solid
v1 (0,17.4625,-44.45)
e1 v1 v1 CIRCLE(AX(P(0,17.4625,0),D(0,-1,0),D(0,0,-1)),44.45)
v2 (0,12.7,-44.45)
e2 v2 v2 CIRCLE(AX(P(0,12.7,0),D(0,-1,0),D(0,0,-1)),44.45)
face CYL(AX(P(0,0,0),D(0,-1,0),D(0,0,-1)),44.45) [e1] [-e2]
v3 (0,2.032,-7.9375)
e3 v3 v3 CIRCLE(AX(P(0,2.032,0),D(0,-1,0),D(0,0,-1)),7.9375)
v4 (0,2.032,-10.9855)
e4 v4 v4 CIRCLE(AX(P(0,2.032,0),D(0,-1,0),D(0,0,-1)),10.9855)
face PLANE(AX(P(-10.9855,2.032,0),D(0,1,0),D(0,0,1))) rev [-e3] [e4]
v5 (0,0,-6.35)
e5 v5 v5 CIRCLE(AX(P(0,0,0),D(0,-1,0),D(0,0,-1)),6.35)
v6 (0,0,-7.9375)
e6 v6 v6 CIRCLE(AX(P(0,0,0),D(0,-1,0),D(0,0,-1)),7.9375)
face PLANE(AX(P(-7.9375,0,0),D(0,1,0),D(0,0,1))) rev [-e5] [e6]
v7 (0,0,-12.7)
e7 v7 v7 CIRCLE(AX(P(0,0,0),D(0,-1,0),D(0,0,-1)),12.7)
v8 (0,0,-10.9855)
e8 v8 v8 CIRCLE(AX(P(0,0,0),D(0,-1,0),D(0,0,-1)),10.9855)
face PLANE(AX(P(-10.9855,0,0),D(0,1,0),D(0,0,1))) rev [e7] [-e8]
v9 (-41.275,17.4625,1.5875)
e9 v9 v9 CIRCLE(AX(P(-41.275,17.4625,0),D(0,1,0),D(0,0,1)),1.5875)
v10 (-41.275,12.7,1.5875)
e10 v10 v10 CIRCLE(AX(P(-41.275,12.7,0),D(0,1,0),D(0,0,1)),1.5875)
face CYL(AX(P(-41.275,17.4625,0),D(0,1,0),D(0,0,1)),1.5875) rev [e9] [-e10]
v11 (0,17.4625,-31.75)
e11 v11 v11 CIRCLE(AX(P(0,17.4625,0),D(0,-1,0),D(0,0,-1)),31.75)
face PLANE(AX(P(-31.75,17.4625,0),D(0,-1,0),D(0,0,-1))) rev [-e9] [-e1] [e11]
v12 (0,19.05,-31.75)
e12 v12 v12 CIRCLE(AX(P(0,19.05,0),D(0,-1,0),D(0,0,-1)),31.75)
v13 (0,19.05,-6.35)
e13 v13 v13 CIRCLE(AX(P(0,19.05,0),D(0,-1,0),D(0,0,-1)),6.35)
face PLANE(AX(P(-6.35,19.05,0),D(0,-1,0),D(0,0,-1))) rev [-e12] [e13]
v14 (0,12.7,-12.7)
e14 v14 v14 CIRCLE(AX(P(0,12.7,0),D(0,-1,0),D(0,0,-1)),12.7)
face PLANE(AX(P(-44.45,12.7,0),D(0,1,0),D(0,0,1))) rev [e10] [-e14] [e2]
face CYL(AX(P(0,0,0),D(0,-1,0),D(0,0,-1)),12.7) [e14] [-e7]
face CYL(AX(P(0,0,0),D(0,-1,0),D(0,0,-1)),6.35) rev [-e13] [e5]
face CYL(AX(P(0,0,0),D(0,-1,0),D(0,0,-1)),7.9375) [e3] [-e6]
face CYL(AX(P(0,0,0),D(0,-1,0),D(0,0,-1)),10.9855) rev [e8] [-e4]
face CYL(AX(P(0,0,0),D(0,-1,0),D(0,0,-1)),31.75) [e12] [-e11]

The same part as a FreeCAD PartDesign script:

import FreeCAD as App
import Part
import Sketcher
from FreeCAD import Vector
Q = App.Units.Quantity


def add_polygon(sketch, points):
    """Adds a closed chain of lines whose ends are joined by coincident constraints."""
    first, n = sketch.GeometryCount, len(points)
    for a, b in zip(points, points[1:] + points[:1]):
        sketch.addGeometry(Part.LineSegment(App.Vector(*a, 0), App.Vector(*b, 0)), False)
    for i in range(n):
        sketch.addConstraint(Sketcher.Constraint("Coincident", first + i, 2, first + (i + 1) % n, 1))

doc = App.newDocument("Part")
body = doc.addObject("PartDesign::Body", "Body")

# Sketch on XY plane
sketch1 = doc.addObject("Sketcher::SketchObject", "Sketch")
body.addObject(sketch1)
sketch1.AttachmentSupport = (doc.XY_Plane, [""])
sketch1.MapMode = "FlatFace"
add_polygon(sketch1, [(-6.35, 0), (-6.35, 19.05), (-31.75, 19.05), (-31.75, 17.4625), (-44.45, 17.4625), (-44.45, 12.7), (-12.7, 12.7), (-12.7, 0), (-10.9855, 0), (-10.9855, 2.032), (-7.9375, 2.032), (-7.9375, 0)])  # lines 0-11
sketch1.addConstraint(Sketcher.Constraint("Vertical", 0))
sketch1.addConstraint(Sketcher.Constraint("Horizontal", 1))
sketch1.addConstraint(Sketcher.Constraint("Vertical", 2))
sketch1.addConstraint(Sketcher.Constraint("Horizontal", 3))
sketch1.addConstraint(Sketcher.Constraint("Vertical", 4))
sketch1.addConstraint(Sketcher.Constraint("Horizontal", 5))
sketch1.addConstraint(Sketcher.Constraint("Vertical", 6))
sketch1.addConstraint(Sketcher.Constraint("Horizontal", 7))
sketch1.addConstraint(Sketcher.Constraint("Vertical", 8))
sketch1.addConstraint(Sketcher.Constraint("Horizontal", 9))
sketch1.addConstraint(Sketcher.Constraint("Vertical", 10))
sketch1.addConstraint(Sketcher.Constraint("Horizontal", 11))
sketch1.addConstraint(Sketcher.Constraint("PointOnObject", 6, 2, -1))
sketch1.addConstraint(Sketcher.Constraint("PointOnObject", 10, 2, -1))
sketch1.addConstraint(Sketcher.Constraint("Equal", 11, 2))
sketch1.addConstraint(Sketcher.Constraint("Equal", 3, 6))
sketch1.addConstraint(Sketcher.Constraint("DistanceX", 1, 2, 1, 1, Q("1 in")))
sketch1.addConstraint(Sketcher.Constraint("DistanceX", 3, 2, 3, 1, Q("0.5 in")))
sketch1.addConstraint(Sketcher.Constraint("DistanceX", 5, 1, 5, 2, Q("1.25 in")))
sketch1.addConstraint(Sketcher.Constraint("DistanceX", 9, 1, 9, 2, Q("0.12 in")))
sketch1.addConstraint(Sketcher.Constraint("DistanceY", 0, 1, 0, 2, Q("0.75 in")))
sketch1.addConstraint(Sketcher.Constraint("DistanceY", 8, 1, 8, 2, Q("0.08 in")))
sketch1.addConstraint(Sketcher.Constraint("DistanceX", 5, 2, -1, 1, Q("0.5 in")))
sketch1.addConstraint(Sketcher.Constraint("DistanceX", 11, 1, 11, 2, Q("0.0625 in")))
revolution = doc.addObject("PartDesign::Revolution", "Revolution")
body.addObject(revolution)
revolution.Profile = sketch1
revolution.ReferenceAxis = (sketch1, ["V_Axis"])
revolution.Angle = 360

# Sketch on XZ plane
sketch2 = doc.addObject("Sketcher::SketchObject", "Sketch001")
body.addObject(sketch2)
sketch2.AttachmentSupport = (doc.XZ_Plane, [""])
sketch2.MapMode = "FlatFace"
sketch2.AttachmentOffset = App.Placement(Vector(0, 0, -0.6875 * 25.4), App.Rotation())
sketch2.addGeometry(Part.Circle(Vector(-41.275, 0, 0), Vector(0, 0, 1), 1.5875), False)
sketch2.addConstraint(Sketcher.Constraint("PointOnObject", 0, 3, -1))
sketch2.addConstraint(Sketcher.Constraint("Diameter", 0, Q("0.125 in")))
sketch2.addConstraint(Sketcher.Constraint("DistanceX", 0, 3, -1, 1, Q("1.625 in")))
doc.recompute()
hole = doc.addObject("PartDesign::Hole", "Hole")
body.addObject(hole)
hole.Profile = sketch2
hole.ThreadType = "None"
hole.Diameter = Q("0.125 in")
hole.DepthType = "ThroughAll"
hole.Reversed = True

doc.recompute()
